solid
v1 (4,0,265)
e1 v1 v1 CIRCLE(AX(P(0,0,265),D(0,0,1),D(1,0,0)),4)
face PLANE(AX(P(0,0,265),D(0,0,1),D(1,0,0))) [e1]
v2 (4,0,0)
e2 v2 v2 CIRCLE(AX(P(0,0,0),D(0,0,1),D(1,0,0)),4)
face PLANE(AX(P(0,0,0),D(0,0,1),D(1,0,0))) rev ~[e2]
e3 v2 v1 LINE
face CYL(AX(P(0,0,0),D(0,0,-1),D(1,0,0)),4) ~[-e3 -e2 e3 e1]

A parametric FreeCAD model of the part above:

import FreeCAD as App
import Part
import Sketcher
Q = App.Units.Quantity

doc = App.newDocument("Part")
body = doc.addObject("PartDesign::Body", "Body")

# Sketch on XY plane
sketch1 = body.newObject("Sketcher::SketchObject", "Sketch")
sketch1.AttachmentSupport = (doc.getObject("XY_Plane"), [""])
sketch1.MapMode = "FlatFace"
sketch1.addGeometry(Part.Circle(App.Vector(0, 0, 0), App.Vector(0, 0, 1), 4), False)
sketch1.addConstraint(Sketcher.Constraint("Coincident", 0, 3, -1, 1))
sketch1.addConstraint(Sketcher.Constraint("Diameter", 0, Q("8 mm")))
pad1 = body.newObject("PartDesign::Pad", "Pad")
pad1.Profile = sketch1
pad1.Length = 265

doc.recompute()
